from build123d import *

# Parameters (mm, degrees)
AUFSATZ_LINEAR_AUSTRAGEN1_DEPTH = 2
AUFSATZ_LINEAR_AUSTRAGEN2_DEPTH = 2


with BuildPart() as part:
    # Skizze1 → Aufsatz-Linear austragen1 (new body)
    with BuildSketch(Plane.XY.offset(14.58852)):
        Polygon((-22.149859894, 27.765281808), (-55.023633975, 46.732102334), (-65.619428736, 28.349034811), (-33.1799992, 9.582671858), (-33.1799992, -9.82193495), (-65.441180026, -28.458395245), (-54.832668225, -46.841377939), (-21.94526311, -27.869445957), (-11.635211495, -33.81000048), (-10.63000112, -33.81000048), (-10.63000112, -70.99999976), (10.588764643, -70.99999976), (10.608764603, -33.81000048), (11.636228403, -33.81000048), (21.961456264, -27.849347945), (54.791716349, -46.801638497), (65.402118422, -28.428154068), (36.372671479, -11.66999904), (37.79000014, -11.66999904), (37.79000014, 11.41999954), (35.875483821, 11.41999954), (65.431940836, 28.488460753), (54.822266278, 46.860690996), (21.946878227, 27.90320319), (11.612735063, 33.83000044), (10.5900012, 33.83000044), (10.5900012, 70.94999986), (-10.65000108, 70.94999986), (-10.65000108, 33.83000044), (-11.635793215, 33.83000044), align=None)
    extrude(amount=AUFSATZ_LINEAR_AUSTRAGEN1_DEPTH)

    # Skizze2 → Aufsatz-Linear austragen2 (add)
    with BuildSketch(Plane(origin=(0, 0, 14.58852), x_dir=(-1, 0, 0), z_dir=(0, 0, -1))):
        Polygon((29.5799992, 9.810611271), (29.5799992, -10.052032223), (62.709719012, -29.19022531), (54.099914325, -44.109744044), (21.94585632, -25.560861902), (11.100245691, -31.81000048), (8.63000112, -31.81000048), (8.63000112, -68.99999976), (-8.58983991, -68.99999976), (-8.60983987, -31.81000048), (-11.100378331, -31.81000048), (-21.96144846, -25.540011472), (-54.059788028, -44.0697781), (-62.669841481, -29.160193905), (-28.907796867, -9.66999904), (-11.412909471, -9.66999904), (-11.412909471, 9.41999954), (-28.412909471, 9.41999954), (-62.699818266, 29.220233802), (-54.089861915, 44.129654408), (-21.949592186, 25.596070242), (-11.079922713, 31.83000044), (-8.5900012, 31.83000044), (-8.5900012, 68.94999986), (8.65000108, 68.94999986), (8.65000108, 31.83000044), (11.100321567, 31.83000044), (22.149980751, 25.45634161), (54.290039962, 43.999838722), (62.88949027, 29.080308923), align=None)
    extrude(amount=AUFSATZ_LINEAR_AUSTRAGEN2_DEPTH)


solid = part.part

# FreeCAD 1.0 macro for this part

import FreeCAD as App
import Part
import Sketcher
Q = App.Units.Quantity

doc = App.newDocument("Part")
body = doc.addObject("PartDesign::Body", "Body")

# Sketch on XY plane
sketch1 = body.newObject("Sketcher::SketchObject", "Sketch")
sketch1.AttachmentSupport = (doc.getObject("XY_Plane"), [""])
sketch1.MapMode = "FlatFace"
sketch1.AttachmentOffset = App.Placement(App.Vector(0, 0, 14.58852), App.Rotation())
sketch1.addGeometry([
    Part.LineSegment(App.Vector(-22.14986, 27.765282, 0), App.Vector(-55.023634, 46.732102, 0)),  # 0
    Part.LineSegment(App.Vector(-55.023634, 46.732102, 0), App.Vector(-65.619429, 28.349035, 0)),  # 1
    Part.LineSegment(App.Vector(-65.619429, 28.349035, 0), App.Vector(-33.179999, 9.582672, 0)),  # 2
    Part.LineSegment(App.Vector(-33.179999, 9.582672, 0), App.Vector(-33.179999, -9.821935, 0)),  # 3
    Part.LineSegment(App.Vector(-33.179999, -9.821935, 0), App.Vector(-65.44118, -28.458395, 0)),  # 4
    Part.LineSegment(App.Vector(-65.44118, -28.458395, 0), App.Vector(-54.832668, -46.841378, 0)),  # 5
    Part.LineSegment(App.Vector(-54.832668, -46.841378, 0), App.Vector(-21.945263, -27.869446, 0)),  # 6
    Part.LineSegment(App.Vector(-21.945263, -27.869446, 0), App.Vector(-11.635211, -33.81, 0)),  # 7
    Part.LineSegment(App.Vector(-11.635211, -33.81, 0), App.Vector(-10.630001, -33.81, 0)),  # 8
    Part.LineSegment(App.Vector(-10.630001, -33.81, 0), App.Vector(-10.630001, -71, 0)),  # 9
    Part.LineSegment(App.Vector(-10.630001, -71, 0), App.Vector(10.588765, -71, 0)),  # 10
    Part.LineSegment(App.Vector(10.588765, -71, 0), App.Vector(10.608765, -33.81, 0)),  # 11
    Part.LineSegment(App.Vector(10.608765, -33.81, 0), App.Vector(11.636228, -33.81, 0)),  # 12
    Part.LineSegment(App.Vector(11.636228, -33.81, 0), App.Vector(21.961456, -27.849348, 0)),  # 13
    Part.LineSegment(App.Vector(21.961456, -27.849348, 0), App.Vector(54.791716, -46.801638, 0)),  # 14
    Part.LineSegment(App.Vector(54.791716, -46.801638, 0), App.Vector(65.402118, -28.428154, 0)),  # 15
    Part.LineSegment(App.Vector(65.402118, -28.428154, 0), App.Vector(36.372671, -11.669999, 0)),  # 16
    Part.LineSegment(App.Vector(36.372671, -11.669999, 0), App.Vector(37.79, -11.669999, 0)),  # 17
    Part.LineSegment(App.Vector(37.79, -11.669999, 0), App.Vector(37.79, 11.42, 0)),  # 18
    Part.LineSegment(App.Vector(37.79, 11.42, 0), App.Vector(35.875484, 11.42, 0)),  # 19
    Part.LineSegment(App.Vector(35.875484, 11.42, 0), App.Vector(65.431941, 28.488461, 0)),  # 20
    Part.LineSegment(App.Vector(65.431941, 28.488461, 0), App.Vector(54.822266, 46.860691, 0)),  # 21
    Part.LineSegment(App.Vector(54.822266, 46.860691, 0), App.Vector(21.946878, 27.903203, 0)),  # 22
    Part.LineSegment(App.Vector(21.946878, 27.903203, 0), App.Vector(11.612735, 33.83, 0)),  # 23
    Part.LineSegment(App.Vector(11.612735, 33.83, 0), App.Vector(10.590001, 33.83, 0)),  # 24
    Part.LineSegment(App.Vector(10.590001, 33.83, 0), App.Vector(10.590001, 70.95, 0)),  # 25
    Part.LineSegment(App.Vector(10.590001, 70.95, 0), App.Vector(-10.650001, 70.95, 0)),  # 26
    Part.LineSegment(App.Vector(-10.650001, 70.95, 0), App.Vector(-10.650001, 33.83, 0)),  # 27
    Part.LineSegment(App.Vector(-10.650001, 33.83, 0), App.Vector(-11.635793, 33.83, 0)),  # 28
    Part.LineSegment(App.Vector(-11.635793, 33.83, 0), App.Vector(-22.14986, 27.765282, 0)),  # 29
], False)
sketch1.addConstraint([
    Sketcher.Constraint("Coincident", 0, 2, 1, 1),
    Sketcher.Constraint("Coincident", 1, 2, 2, 1),
    Sketcher.Constraint("Coincident", 2, 2, 3, 1),
    Sketcher.Constraint("Coincident", 3, 2, 4, 1),
    Sketcher.Constraint("Coincident", 4, 2, 5, 1),
    Sketcher.Constraint("Coincident", 5, 2, 6, 1),
    Sketcher.Constraint("Coincident", 6, 2, 7, 1),
    Sketcher.Constraint("Coincident", 7, 2, 8, 1),
    Sketcher.Constraint("Coincident", 8, 2, 9, 1),
    Sketcher.Constraint("Coincident", 9, 2, 10, 1),
    Sketcher.Constraint("Coincident", 10, 2, 11, 1),
    Sketcher.Constraint("Coincident", 11, 2, 12, 1),
    Sketcher.Constraint("Coincident", 12, 2, 13, 1),
    Sketcher.Constraint("Coincident", 13, 2, 14, 1),
    Sketcher.Constraint("Coincident", 14, 2, 15, 1),
    Sketcher.Constraint("Coincident", 15, 2, 16, 1),
    Sketcher.Constraint("Coincident", 16, 2, 17, 1),
    Sketcher.Constraint("Coincident", 17, 2, 18, 1),
    Sketcher.Constraint("Coincident", 18, 2, 19, 1),
    Sketcher.Constraint("Coincident", 19, 2, 20, 1),
    Sketcher.Constraint("Coincident", 20, 2, 21, 1),
    Sketcher.Constraint("Coincident", 21, 2, 22, 1),
    Sketcher.Constraint("Coincident", 22, 2, 23, 1),
    Sketcher.Constraint("Coincident", 23, 2, 24, 1),
    Sketcher.Constraint("Coincident", 24, 2, 25, 1),
    Sketcher.Constraint("Coincident", 25, 2, 26, 1),
    Sketcher.Constraint("Coincident", 26, 2, 27, 1),
    Sketcher.Constraint("Coincident", 27, 2, 28, 1),
    Sketcher.Constraint("Coincident", 28, 2, 29, 1),
    Sketcher.Constraint("Coincident", 29, 2, 0, 1),
    Sketcher.Constraint("Vertical", 3),
    Sketcher.Constraint("Horizontal", 8),
    Sketcher.Constraint("Vertical", 9),
    Sketcher.Constraint("Horizontal", 10),
    Sketcher.Constraint("Horizontal", 12),
    Sketcher.Constraint("Horizontal", 17),
    Sketcher.Constraint("Vertical", 18),
    Sketcher.Constraint("Horizontal", 19),
    Sketcher.Constraint("Horizontal", 24),
    Sketcher.Constraint("Vertical", 25),
    Sketcher.Constraint("Horizontal", 26),
    Sketcher.Constraint("Vertical", 27),
    Sketcher.Constraint("Horizontal", 28),
    Sketcher.Constraint("DistanceY", 9, 2, -1, 1, Q("71 mm")),
    Sketcher.Constraint("DistanceY", 9, 2, 9, 1, Q("37.189999 mm")),
    Sketcher.Constraint("DistanceY", 18, 1, 18, 2, Q("23.089999 mm")),
    Sketcher.Constraint("DistanceY", 25, 1, 25, 2, Q("37.119999 mm")),
    Sketcher.Constraint("DistanceY", 27, 2, 27, 1, Q("37.119999 mm")),
    Sketcher.Constraint("DistanceX", 24, 2, 18, 2, Q("27.199999 mm")),
    Sketcher.Constraint("DistanceX", 2, 2, -1, 1, Q("33.179999 mm")),
    Sketcher.Constraint("DistanceX", 8, 2, -1, 1, Q("10.630001 mm")),
    Sketcher.Constraint("DistanceY", 11, 2, -1, 1, Q("33.81 mm")),
    Sketcher.Constraint("DistanceY", 16, 2, -1, 1, Q("11.669999 mm")),
    Sketcher.Constraint("DistanceX", -1, 1, 17, 2, Q("37.79 mm")),
    Sketcher.Constraint("DistanceY", -1, 1, 23, 2, Q("33.83 mm")),
    Sketcher.Constraint("DistanceX", 26, 2, -1, 1, Q("10.650001 mm")),
    Sketcher.Constraint("DistanceX", 10, 2, 11, 2, Q("0.02 mm")),
    Sketcher.Constraint("DistanceX", 8, 1, 8, 2, Q("1.00521 mm")),
    Sketcher.Constraint("DistanceX", 17, 1, 17, 2, Q("1.417329 mm")),
    Sketcher.Constraint("DistanceY", 6, 2, 13, 2, Q("0.020098 mm")),
    Sketcher.Constraint("Distance", 7, Q("11.899048 mm")),
    Sketcher.Constraint("Distance", 22, Q("37.94967 mm")),
    Sketcher.Constraint("Distance", 23, Q("11.913079 mm")),
    Sketcher.Constraint("Distance", 29, Q("12.137809 mm")),
    Sketcher.Constraint("DistanceX", 10, 1, 10, 2, Q("21.218766 mm")),
    Sketcher.Constraint("DistanceX", 12, 1, 12, 2, Q("1.027464 mm")),
    Sketcher.Constraint("DistanceX", 19, 2, 19, 1, Q("1.914516 mm")),
    Sketcher.Constraint("DistanceX", 24, 2, 24, 1, Q("1.022734 mm")),
    Sketcher.Constraint("DistanceX", 28, 2, 28, 1, Q("0.985792 mm")),
    Sketcher.Constraint("DistanceY", 3, 2, 3, 1, Q("19.404607 mm")),
    Sketcher.Constraint("DistanceX", 1, 2, -1, 1, Q("65.619429 mm")),
    Sketcher.Constraint("DistanceY", -1, 1, 2, 2, Q("9.582672 mm")),
    Sketcher.Constraint("DistanceX", 4, 2, -1, 1, Q("65.44118 mm")),
    Sketcher.Constraint("DistanceX", 5, 2, -1, 1, Q("54.832668 mm")),
    Sketcher.Constraint("DistanceY", 14, 2, -1, 1, Q("46.801638 mm")),
    Sketcher.Constraint("DistanceX", -1, 1, 15, 2, Q("65.402118 mm")),
    Sketcher.Constraint("DistanceX", -1, 1, 20, 2, Q("65.431941 mm")),
    Sketcher.Constraint("DistanceY", -1, 1, 20, 2, Q("28.488461 mm")),
    Sketcher.Constraint("DistanceY", -1, 1, 21, 2, Q("46.860691 mm")),
    Sketcher.Constraint("DistanceX", -1, 1, 22, 2, Q("21.946878 mm")),
    Sketcher.Constraint("DistanceX", 29, 2, -1, 1, Q("22.14986 mm")),
    Sketcher.Constraint("DistanceY", 2, 2, 0, 2, Q("37.14943 mm")),
    Sketcher.Constraint("DistanceY", 3, 2, 1, 2, Q("38.17097 mm")),
    Sketcher.Constraint("DistanceY", 4, 2, 3, 2, Q("18.63646 mm")),
    Sketcher.Constraint("DistanceY", 5, 2, 2, 2, Q("56.42405 mm")),
    Sketcher.Constraint("DistanceY", 6, 2, 3, 2, Q("18.047511 mm")),
    Sketcher.Constraint("DistanceX", 11, 2, 13, 2, Q("11.352692 mm")),
    Sketcher.Constraint("DistanceX", 13, 2, 14, 2, Q("32.83026 mm")),
    Sketcher.Constraint("Distance", 0, Q("37.952935 mm")),
    Sketcher.Constraint("Distance", 15, Q("21.217105 mm")),
])
pad1 = body.newObject("PartDesign::Pad", "Pad")
pad1.Profile = sketch1
pad1.Length = 2

# Sketch on XY plane
sketch2 = body.newObject("Sketcher::SketchObject", "Sketch001")
sketch2.AttachmentSupport = (doc.getObject("XY_Plane"), [""])
sketch2.MapMode = "FlatFace"
sketch2.AttachmentOffset = App.Placement(App.Vector(0, 0, 14.58852), App.Rotation())
sketch2.addGeometry([
    Part.LineSegment(App.Vector(-29.579999, -10.052032, 0), App.Vector(-29.579999, 9.810611, 0)),  # 0
    Part.LineSegment(App.Vector(-29.579999, 9.810611, 0), App.Vector(-62.88949, 29.080309, 0)),  # 1
    Part.LineSegment(App.Vector(-62.88949, 29.080309, 0), App.Vector(-54.29004, 43.999839, 0)),  # 2
    Part.LineSegment(App.Vector(-54.29004, 43.999839, 0), App.Vector(-22.149981, 25.456342, 0)),  # 3
    Part.LineSegment(App.Vector(-22.149981, 25.456342, 0), App.Vector(-11.100322, 31.83, 0)),  # 4
    Part.LineSegment(App.Vector(-11.100322, 31.83, 0), App.Vector(-8.650001, 31.83, 0)),  # 5
    Part.LineSegment(App.Vector(-8.650001, 31.83, 0), App.Vector(-8.650001, 68.95, 0)),  # 6
    Part.LineSegment(App.Vector(-8.650001, 68.95, 0), App.Vector(8.590001, 68.95, 0)),  # 7
    Part.LineSegment(App.Vector(8.590001, 68.95, 0), App.Vector(8.590001, 31.83, 0)),  # 8
    Part.LineSegment(App.Vector(8.590001, 31.83, 0), App.Vector(11.079923, 31.83, 0)),  # 9
    Part.LineSegment(App.Vector(11.079923, 31.83, 0), App.Vector(21.949592, 25.59607, 0)),  # 10
    Part.LineSegment(App.Vector(21.949592, 25.59607, 0), App.Vector(54.089862, 44.129654, 0)),  # 11
    Part.LineSegment(App.Vector(54.089862, 44.129654, 0), App.Vector(62.699818, 29.220234, 0)),  # 12
    Part.LineSegment(App.Vector(62.699818, 29.220234, 0), App.Vector(28.412909, 9.42, 0)),  # 13
    Part.LineSegment(App.Vector(28.412909, 9.42, 0), App.Vector(11.412909, 9.42, 0)),  # 14
    Part.LineSegment(App.Vector(11.412909, 9.42, 0), App.Vector(11.412909, -9.669999, 0)),  # 15
    Part.LineSegment(App.Vector(11.412909, -9.669999, 0), App.Vector(28.907797, -9.669999, 0)),  # 16
    Part.LineSegment(App.Vector(28.907797, -9.669999, 0), App.Vector(62.669841, -29.160194, 0)),  # 17
    Part.LineSegment(App.Vector(62.669841, -29.160194, 0), App.Vector(54.059788, -44.069778, 0)),  # 18
    Part.LineSegment(App.Vector(54.059788, -44.069778, 0), App.Vector(21.961448, -25.540011, 0)),  # 19
    Part.LineSegment(App.Vector(21.961448, -25.540011, 0), App.Vector(11.100378, -31.81, 0)),  # 20
    Part.LineSegment(App.Vector(11.100378, -31.81, 0), App.Vector(8.60984, -31.81, 0)),  # 21
    Part.LineSegment(App.Vector(8.60984, -31.81, 0), App.Vector(8.58984, -69, 0)),  # 22
    Part.LineSegment(App.Vector(8.58984, -69, 0), App.Vector(-8.630001, -69, 0)),  # 23
    Part.LineSegment(App.Vector(-8.630001, -69, 0), App.Vector(-8.630001, -31.81, 0)),  # 24
    Part.LineSegment(App.Vector(-8.630001, -31.81, 0), App.Vector(-11.100246, -31.81, 0)),  # 25
    Part.LineSegment(App.Vector(-11.100246, -31.81, 0), App.Vector(-21.945856, -25.560862, 0)),  # 26
    Part.LineSegment(App.Vector(-21.945856, -25.560862, 0), App.Vector(-54.099914, -44.109744, 0)),  # 27
    Part.LineSegment(App.Vector(-54.099914, -44.109744, 0), App.Vector(-62.709719, -29.190225, 0)),  # 28
    Part.LineSegment(App.Vector(-62.709719, -29.190225, 0), App.Vector(-29.579999, -10.052032, 0)),  # 29
], False)
sketch2.addConstraint([
    Sketcher.Constraint("Coincident", 0, 2, 1, 1),
    Sketcher.Constraint("Coincident", 1, 2, 2, 1),
    Sketcher.Constraint("Coincident", 2, 2, 3, 1),
    Sketcher.Constraint("Coincident", 3, 2, 4, 1),
    Sketcher.Constraint("Coincident", 4, 2, 5, 1),
    Sketcher.Constraint("Coincident", 5, 2, 6, 1),
    Sketcher.Constraint("Coincident", 6, 2, 7, 1),
    Sketcher.Constraint("Coincident", 7, 2, 8, 1),
    Sketcher.Constraint("Coincident", 8, 2, 9, 1),
    Sketcher.Constraint("Coincident", 9, 2, 10, 1),
    Sketcher.Constraint("Coincident", 10, 2, 11, 1),
    Sketcher.Constraint("Coincident", 11, 2, 12, 1),
    Sketcher.Constraint("Coincident", 12, 2, 13, 1),
    Sketcher.Constraint("Coincident", 13, 2, 14, 1),
    Sketcher.Constraint("Coincident", 14, 2, 15, 1),
    Sketcher.Constraint("Coincident", 15, 2, 16, 1),
    Sketcher.Constraint("Coincident", 16, 2, 17, 1),
    Sketcher.Constraint("Coincident", 17, 2, 18, 1),
    Sketcher.Constraint("Coincident", 18, 2, 19, 1),
    Sketcher.Constraint("Coincident", 19, 2, 20, 1),
    Sketcher.Constraint("Coincident", 20, 2, 21, 1),
    Sketcher.Constraint("Coincident", 21, 2, 22, 1),
    Sketcher.Constraint("Coincident", 22, 2, 23, 1),
    Sketcher.Constraint("Coincident", 23, 2, 24, 1),
    Sketcher.Constraint("Coincident", 24, 2, 25, 1),
    Sketcher.Constraint("Coincident", 25, 2, 26, 1),
    Sketcher.Constraint("Coincident", 26, 2, 27, 1),
    Sketcher.Constraint("Coincident", 27, 2, 28, 1),
    Sketcher.Constraint("Coincident", 28, 2, 29, 1),
    Sketcher.Constraint("Coincident", 29, 2, 0, 1),
    Sketcher.Constraint("Vertical", 0),
    Sketcher.Constraint("Horizontal", 5),
    Sketcher.Constraint("Vertical", 6),
    Sketcher.Constraint("Horizontal", 7),
    Sketcher.Constraint("Vertical", 8),
    Sketcher.Constraint("Horizontal", 9),
    Sketcher.Constraint("Horizontal", 14),
    Sketcher.Constraint("Vertical", 15),
    Sketcher.Constraint("Horizontal", 16),
    Sketcher.Constraint("Horizontal", 21),
    Sketcher.Constraint("Horizontal", 23),
    Sketcher.Constraint("Vertical", 24),
    Sketcher.Constraint("Horizontal", 25),
    Sketcher.Constraint("DistanceX", 14, 2, 14, 1, Q("17 mm")),
    Sketcher.Constraint("DistanceY", 22, 2, -1, 1, Q("69 mm")),
    Sketcher.Constraint("DistanceY", 6, 1, 6, 2, Q("37.119999 mm")),
    Sketcher.Constraint("DistanceY", 8, 2, 8, 1, Q("37.119999 mm")),
    Sketcher.Constraint("DistanceY", 15, 2, 15, 1, Q("19.089999 mm")),
    Sketcher.Constraint("DistanceY", 24, 1, 24, 2, Q("37.189999 mm")),
    Sketcher.Constraint("DistanceY", 15, 2, 9, 2, Q("41.499999 mm")),
    Sketcher.Constraint("DistanceX", 0, 2, -1, 1, Q("29.579999 mm")),
    Sketcher.Constraint("DistanceY", -1, 1, 4, 2, Q("31.83 mm")),
    Sketcher.Constraint("DistanceX", 5, 2, -1, 1, Q("8.650001 mm")),
    Sketcher.Constraint("DistanceX", -1, 1, 7, 2, Q("8.590001 mm")),
    Sketcher.Constraint("DistanceY", 20, 2, -1, 1, Q("31.81 mm")),
    Sketcher.Constraint("DistanceX", 23, 2, -1, 1, Q("8.630001 mm")),
    Sketcher.Constraint("DistanceX", 22, 2, 21, 2, Q("0.02 mm")),
    Sketcher.Constraint("DistanceX", 5, 1, 5, 2, Q("2.45032 mm")),
    Sketcher.Constraint("DistanceX", 9, 1, 9, 2, Q("2.489922 mm")),
    Sketcher.Constraint("DistanceX", 21, 2, 21, 1, Q("2.490538 mm")),
    Sketcher.Constraint("DistanceX", 23, 2, 23, 1, Q("17.219841 mm")),
    Sketcher.Constraint("Distance", 1, Q("38.481729 mm")),
    Sketcher.Constraint("Distance", 2, Q("17.220421 mm")),
    Sketcher.Constraint("Distance", 13, Q("39.593451 mm")),
    Sketcher.Constraint("Distance", 19, Q("37.062861 mm")),
    Sketcher.Constraint("Distance", 26, Q("12.517148 mm")),
    Sketcher.Constraint("DistanceX", 16, 1, 16, 2, Q("17.494887 mm")),
    Sketcher.Constraint("DistanceX", 25, 2, 25, 1, Q("2.470245 mm")),
    Sketcher.Constraint("DistanceY", 0, 1, 0, 2, Q("19.862643 mm")),
    Sketcher.Constraint("DistanceY", -1, 1, 0, 2, Q("9.810611 mm")),
    Sketcher.Constraint("DistanceX", 1, 2, -1, 1, Q("62.88949 mm")),
    Sketcher.Constraint("DistanceX", 2, 2, -1, 1, Q("54.29004 mm")),
    Sketcher.Constraint("DistanceX", 3, 2, -1, 1, Q("22.149981 mm")),
    Sketcher.Constraint("DistanceY", -1, 1, 3, 2, Q("25.456342 mm")),
    Sketcher.Constraint("DistanceY", -1, 1, 10, 2, Q("25.59607 mm")),
    Sketcher.Constraint("DistanceX", -1, 1, 11, 2, Q("54.089862 mm")),
    Sketcher.Constraint("DistanceX", -1, 1, 12, 2, Q("62.699818 mm")),
    Sketcher.Constraint("DistanceX", -1, 1, 13, 2, Q("28.412909 mm")),
    Sketcher.Constraint("DistanceX", -1, 1, 17, 2, Q("62.669841 mm")),
    Sketcher.Constraint("DistanceX", -1, 1, 18, 2, Q("54.059788 mm")),
    Sketcher.Constraint("DistanceY", 18, 2, -1, 1, Q("44.069778 mm")),
    Sketcher.Constraint("DistanceX", -1, 1, 19, 2, Q("21.961448 mm")),
    Sketcher.Constraint("DistanceY", 26, 2, -1, 1, Q("25.560862 mm")),
    Sketcher.Constraint("DistanceX", 28, 2, -1, 1, Q("62.709719 mm")),
    Sketcher.Constraint("DistanceX", 9, 2, 10, 2, Q("10.869669 mm")),
    Sketcher.Constraint("DistanceY", 12, 2, 11, 2, Q("14.909421 mm")),
    Sketcher.Constraint("DistanceX", 27, 2, 26, 2, Q("32.154058 mm")),
    Sketcher.Constraint("DistanceY", 27, 2, 28, 2, Q("14.919519 mm")),
    Sketcher.Constraint("Distance", 17, Q("38.983886 mm")),
    Sketcher.Constraint("Distance", 27, Q("37.120674 mm")),
])
pad2 = body.newObject("PartDesign::Pad", "Pad001")
pad2.Profile = sketch2
pad2.Length = 2
pad2.Reversed = True

doc.recompute()
